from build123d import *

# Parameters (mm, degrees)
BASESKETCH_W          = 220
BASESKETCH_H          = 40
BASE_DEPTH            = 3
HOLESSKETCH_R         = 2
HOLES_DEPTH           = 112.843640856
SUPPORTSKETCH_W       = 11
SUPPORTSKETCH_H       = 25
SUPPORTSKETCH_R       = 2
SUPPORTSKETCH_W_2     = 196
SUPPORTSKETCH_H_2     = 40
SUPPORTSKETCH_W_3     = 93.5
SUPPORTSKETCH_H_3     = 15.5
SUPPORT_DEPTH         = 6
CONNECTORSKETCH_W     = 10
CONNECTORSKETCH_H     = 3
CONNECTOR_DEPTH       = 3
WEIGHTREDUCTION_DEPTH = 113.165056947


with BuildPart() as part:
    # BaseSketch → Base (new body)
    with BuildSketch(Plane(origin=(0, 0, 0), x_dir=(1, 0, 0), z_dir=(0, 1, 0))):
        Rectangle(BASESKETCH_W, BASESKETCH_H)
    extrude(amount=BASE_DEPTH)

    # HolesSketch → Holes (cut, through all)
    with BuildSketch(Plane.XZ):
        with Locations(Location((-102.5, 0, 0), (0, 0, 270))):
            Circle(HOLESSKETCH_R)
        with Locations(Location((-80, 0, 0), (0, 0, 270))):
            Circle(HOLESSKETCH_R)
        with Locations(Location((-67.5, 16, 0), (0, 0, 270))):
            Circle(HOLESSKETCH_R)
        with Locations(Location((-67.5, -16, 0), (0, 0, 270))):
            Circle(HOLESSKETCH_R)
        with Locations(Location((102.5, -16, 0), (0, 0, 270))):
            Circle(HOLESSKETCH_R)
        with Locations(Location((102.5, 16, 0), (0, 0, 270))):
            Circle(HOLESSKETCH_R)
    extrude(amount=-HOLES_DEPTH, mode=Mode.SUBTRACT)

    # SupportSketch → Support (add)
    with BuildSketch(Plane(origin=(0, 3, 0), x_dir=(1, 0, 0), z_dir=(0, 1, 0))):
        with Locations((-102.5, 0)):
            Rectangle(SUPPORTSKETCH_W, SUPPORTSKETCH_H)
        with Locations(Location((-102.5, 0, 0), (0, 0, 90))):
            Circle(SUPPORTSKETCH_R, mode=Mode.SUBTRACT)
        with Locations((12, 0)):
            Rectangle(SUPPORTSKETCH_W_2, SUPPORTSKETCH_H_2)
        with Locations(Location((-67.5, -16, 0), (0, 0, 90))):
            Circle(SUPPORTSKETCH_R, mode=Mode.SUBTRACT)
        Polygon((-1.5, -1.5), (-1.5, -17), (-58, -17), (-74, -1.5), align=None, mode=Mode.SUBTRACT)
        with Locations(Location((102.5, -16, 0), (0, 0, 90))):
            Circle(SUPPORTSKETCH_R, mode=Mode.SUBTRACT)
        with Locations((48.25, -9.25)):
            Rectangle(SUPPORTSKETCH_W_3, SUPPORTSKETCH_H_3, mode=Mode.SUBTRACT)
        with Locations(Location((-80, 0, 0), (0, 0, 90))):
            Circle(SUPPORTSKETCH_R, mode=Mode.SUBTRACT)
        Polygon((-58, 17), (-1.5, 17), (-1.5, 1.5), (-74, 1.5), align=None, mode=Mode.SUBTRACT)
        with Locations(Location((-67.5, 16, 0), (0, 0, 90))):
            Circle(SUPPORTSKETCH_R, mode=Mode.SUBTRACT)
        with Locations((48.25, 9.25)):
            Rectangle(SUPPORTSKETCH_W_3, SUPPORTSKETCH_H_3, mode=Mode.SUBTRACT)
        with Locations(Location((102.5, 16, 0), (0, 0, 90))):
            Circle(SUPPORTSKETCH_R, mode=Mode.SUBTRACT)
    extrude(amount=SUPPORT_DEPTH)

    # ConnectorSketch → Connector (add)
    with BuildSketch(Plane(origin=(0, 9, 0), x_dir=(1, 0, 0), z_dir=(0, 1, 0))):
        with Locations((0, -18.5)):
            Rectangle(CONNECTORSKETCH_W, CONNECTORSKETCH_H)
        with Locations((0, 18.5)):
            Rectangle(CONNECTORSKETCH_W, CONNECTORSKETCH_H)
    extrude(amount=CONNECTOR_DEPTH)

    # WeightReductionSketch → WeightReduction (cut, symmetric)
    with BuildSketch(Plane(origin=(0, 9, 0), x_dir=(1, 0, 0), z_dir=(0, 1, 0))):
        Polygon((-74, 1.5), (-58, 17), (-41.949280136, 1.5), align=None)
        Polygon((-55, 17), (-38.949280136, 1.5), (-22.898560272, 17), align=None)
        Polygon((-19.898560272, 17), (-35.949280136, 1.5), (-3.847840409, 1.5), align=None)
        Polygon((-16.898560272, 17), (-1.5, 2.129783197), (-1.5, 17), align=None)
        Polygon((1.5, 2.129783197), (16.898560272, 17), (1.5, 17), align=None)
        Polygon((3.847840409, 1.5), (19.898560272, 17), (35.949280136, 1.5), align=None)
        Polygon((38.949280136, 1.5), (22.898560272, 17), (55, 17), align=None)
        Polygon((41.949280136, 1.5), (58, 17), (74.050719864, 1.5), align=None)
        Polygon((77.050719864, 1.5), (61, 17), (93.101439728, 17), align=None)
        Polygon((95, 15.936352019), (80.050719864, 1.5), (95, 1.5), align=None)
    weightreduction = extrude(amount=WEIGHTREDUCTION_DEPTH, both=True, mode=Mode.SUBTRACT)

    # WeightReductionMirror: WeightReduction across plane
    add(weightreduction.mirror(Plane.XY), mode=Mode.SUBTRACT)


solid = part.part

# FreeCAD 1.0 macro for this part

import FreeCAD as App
import Part
import Sketcher
from FreeCAD import Vector
Q = App.Units.Quantity


def add_polygon(sketch, points):
    """Adds a closed chain of lines whose ends are joined by coincident constraints."""
    first, n = sketch.GeometryCount, len(points)
    for a, b in zip(points, points[1:] + points[:1]):
        sketch.addGeometry(Part.LineSegment(App.Vector(*a, 0), App.Vector(*b, 0)), False)
    for i in range(n):
        sketch.addConstraint(Sketcher.Constraint("Coincident", first + i, 2, first + (i + 1) % n, 1))

doc = App.newDocument("Part")
body = doc.addObject("PartDesign::Body", "Body")

sketch1 = body.newObject("Sketcher::SketchObject", "Sketch")
sketch1.AttachmentSupport = (doc.getObject("XZ_Plane"), [""])
sketch1.MapMode = "FlatFace"
add_polygon(sketch1, [(-110, -20), (-110, 20), (110, 20), (110, -20)])
sketch1.addConstraint(Sketcher.Constraint("Vertical", 0))
sketch1.addConstraint(Sketcher.Constraint("Horizontal", 1))
sketch1.addConstraint(Sketcher.Constraint("Vertical", 2))
sketch1.addConstraint(Sketcher.Constraint("Horizontal", 3))
sketch1.addConstraint(Sketcher.Constraint("Symmetric", 0, 2, 2, 2, -1, 1))
sketch1.addConstraint(Sketcher.Constraint("DistanceX", 1, 1, 1, 2, Q("220 mm")))
sketch1.addConstraint(Sketcher.Constraint("DistanceY", 0, 1, 0, 2, Q("40 mm")))
pad1 = body.newObject("PartDesign::Pad", "Pad")
pad1.Profile = sketch1
pad1.Length = 3
pad1.Reversed = True

sketch2 = body.newObject("Sketcher::SketchObject", "Sketch001")
sketch2.AttachmentSupport = (doc.getObject("XZ_Plane"), [""])
sketch2.MapMode = "FlatFace"
sketch2.addGeometry(Part.Circle(Vector(-102.5, 0, 0), Vector(0, 0, 1), 2), False)
sketch2.addGeometry(Part.Circle(Vector(-80, 0, 0), Vector(0, 0, 1), 2), False)
sketch2.addGeometry(Part.Circle(Vector(-67.5, 16, 0), Vector(0, 0, 1), 2), False)
sketch2.addGeometry(Part.Circle(Vector(-67.5, -16, 0), Vector(0, 0, 1), 2), False)
sketch2.addGeometry(Part.Circle(Vector(102.5, -16, 0), Vector(0, 0, 1), 2), False)
sketch2.addGeometry(Part.Circle(Vector(102.5, 16, 0), Vector(0, 0, 1), 2), False)
sketch2.addConstraint(Sketcher.Constraint("Equal", 0, 1))
sketch2.addConstraint(Sketcher.Constraint("Equal", 1, 2))
sketch2.addConstraint(Sketcher.Constraint("Equal", 2, 3))
sketch2.addConstraint(Sketcher.Constraint("Equal", 3, 4))
sketch2.addConstraint(Sketcher.Constraint("Equal", 4, 5))
sketch2.addConstraint(Sketcher.Constraint("Symmetric", 2, 3, 3, 3, -1))
sketch2.addConstraint(Sketcher.Constraint("Symmetric", 4, 3, 5, 3, -1))
sketch2.addConstraint(Sketcher.Constraint("PointOnObject", 0, 3, -1))
sketch2.addConstraint(Sketcher.Constraint("PointOnObject", 1, 3, -1))
sketch2.addConstraint(Sketcher.Constraint("Horizontal", 3, 3, 4, 3))
sketch2.addConstraint(Sketcher.Constraint("Diameter", 0, Q("4 mm")))
sketch2.addConstraint(Sketcher.Constraint("DistanceX", 1, 3, -1, 1, Q("80 mm")))
sketch2.addConstraint(Sketcher.Constraint("DistanceY", -1, 1, 2, 3, Q("16 mm")))
sketch2.addConstraint(Sketcher.Constraint("DistanceX", 0, 3, 2, 3, Q("35 mm")))
sketch2.addConstraint(Sketcher.Constraint("DistanceX", 3, 3, 4, 3, Q("170 mm")))
sketch2.addConstraint(Sketcher.Constraint("DistanceX", 0, 3, -1, 1, Q("102.5 mm")))
pocket1 = body.newObject("PartDesign::Pocket", "Pocket")
pocket1.Profile = sketch2
pocket1.Type = "ThroughAll"

sketch3 = body.newObject("Sketcher::SketchObject", "Sketch002")
sketch3.AttachmentSupport = (doc.getObject("XZ_Plane"), [""])
sketch3.MapMode = "FlatFace"
sketch3.AttachmentOffset = App.Placement(Vector(0, 0, -3), App.Rotation())
add_polygon(sketch3, [(-108, -12.5), (-108, 12.5), (-97, 12.5), (-97, -12.5)])
sketch3.addGeometry(Part.Circle(Vector(-102.5, 0, 0), Vector(0, 0, 1), 2), False)
add_polygon(sketch3, [(-86, -20), (-86, 20), (110, 20), (110, -20)])
sketch3.addGeometry(Part.Circle(Vector(-67.5, 16, 0), Vector(0, 0, 1), 2), False)
add_polygon(sketch3, [(-74, 1.5), (-1.5, 1.5), (-1.5, 17), (-58, 17)])
add_polygon(sketch3, [(95, 17), (1.5, 17), (1.5, 1.5), (95, 1.5)])
sketch3.addGeometry(Part.Circle(Vector(102.5, 16, 0), Vector(0, 0, 1), 2), False)
sketch3.addGeometry(Part.Circle(Vector(-80, 0, 0), Vector(0, 0, 1), 2), False)
add_polygon(sketch3, [(-74, -1.5), (-58, -17), (-1.5, -17), (-1.5, -1.5)])
sketch3.addGeometry(Part.Circle(Vector(-67.5, -16, 0), Vector(0, 0, 1), 2), False)
add_polygon(sketch3, [(95, -1.5), (1.5, -1.5), (1.5, -17), (95, -17)])
sketch3.addGeometry(Part.Circle(Vector(102.5, -16, 0), Vector(0, 0, 1), 2), False)
sketch3.addConstraint(Sketcher.Constraint("Vertical", 0))
sketch3.addConstraint(Sketcher.Constraint("Horizontal", 1))
sketch3.addConstraint(Sketcher.Constraint("Vertical", 2))
sketch3.addConstraint(Sketcher.Constraint("Horizontal", 3))
sketch3.addConstraint(Sketcher.Constraint("Vertical", 5))
sketch3.addConstraint(Sketcher.Constraint("Horizontal", 6))
sketch3.addConstraint(Sketcher.Constraint("Vertical", 7))
sketch3.addConstraint(Sketcher.Constraint("Horizontal", 8))
sketch3.addConstraint(Sketcher.Constraint("Horizontal", 10))
sketch3.addConstraint(Sketcher.Constraint("Vertical", 11))
sketch3.addConstraint(Sketcher.Constraint("Horizontal", 12))
sketch3.addConstraint(Sketcher.Constraint("Horizontal", 14))
sketch3.addConstraint(Sketcher.Constraint("Vertical", 15))
sketch3.addConstraint(Sketcher.Constraint("Horizontal", 16))
sketch3.addConstraint(Sketcher.Constraint("Vertical", 17))
sketch3.addConstraint(Sketcher.Constraint("Horizontal", 21))
sketch3.addConstraint(Sketcher.Constraint("Vertical", 22))
sketch3.addConstraint(Sketcher.Constraint("Horizontal", 23))
sketch3.addConstraint(Sketcher.Constraint("Horizontal", 25))
sketch3.addConstraint(Sketcher.Constraint("Vertical", 26))
sketch3.addConstraint(Sketcher.Constraint("Horizontal", 27))
sketch3.addConstraint(Sketcher.Constraint("Vertical", 28))
sketch3.addConstraint(Sketcher.Constraint("Equal", 4, 9))
sketch3.addConstraint(Sketcher.Constraint("Equal", 9, 18))
sketch3.addConstraint(Sketcher.Constraint("Equal", 18, 19))
sketch3.addConstraint(Sketcher.Constraint("Equal", 19, 24))
sketch3.addConstraint(Sketcher.Constraint("Equal", 24, 29))
sketch3.addConstraint(Sketcher.Constraint("Symmetric", 14, 2, 21, 2, -1, 1))
sketch3.addConstraint(Sketcher.Constraint("Symmetric", 10, 2, 25, 2, -1, 1))
sketch3.addConstraint(Sketcher.Constraint("Symmetric", 11, 2, 14, 2, -2))
sketch3.addConstraint(Sketcher.Constraint("Symmetric", 9, 3, 24, 3, -1))
sketch3.addConstraint(Sketcher.Constraint("Symmetric", 18, 3, 29, 3, -1))
sketch3.addConstraint(Sketcher.Constraint("Symmetric", 13, 2, 23, 2, -1))
sketch3.addConstraint(Sketcher.Constraint("Symmetric", 17, 2, 27, 2, -1))
sketch3.addConstraint(Sketcher.Constraint("PointOnObject", 4, 3, -1))
sketch3.addConstraint(Sketcher.Constraint("PointOnObject", 19, 3, -1))
sketch3.addConstraint(Sketcher.Constraint("Horizontal", 9, 3, 18, 3))
sketch3.addConstraint(Sketcher.Constraint("Horizontal", 13, 2, 15, 2))
sketch3.addConstraint(Sketcher.Constraint("Vertical", 12, 2, 20, 2))
sketch3.addConstraint(Sketcher.Constraint("Diameter", 4, Q("4 mm")))
sketch3.addConstraint(Sketcher.Constraint("DistanceX", 1, 1, 1, 2, Q("11 mm")))
sketch3.addConstraint(Sketcher.Constraint("DistanceX", 6, 1, 6, 2, Q("196 mm")))
sketch3.addConstraint(Sketcher.Constraint("DistanceY", 0, 1, 0, 2, Q("25 mm")))
sketch3.addConstraint(Sketcher.Constraint("DistanceY", 5, 1, 5, 2, Q("40 mm")))
sketch3.addConstraint(Sketcher.Constraint("DistanceX", 10, 1, 10, 2, Q("72.5 mm")))
sketch3.addConstraint(Sketcher.Constraint("DistanceX", 12, 2, 12, 1, Q("56.5 mm")))
sketch3.addConstraint(Sketcher.Constraint("DistanceX", 14, 2, 14, 1, Q("93.5 mm")))
sketch3.addConstraint(Sketcher.Constraint("DistanceY", 11, 1, 11, 2, Q("15.5 mm")))
sketch3.addConstraint(Sketcher.Constraint("DistanceY", -1, 1, 9, 3, Q("16 mm")))
sketch3.addConstraint(Sketcher.Constraint("DistanceX", 19, 3, -1, 1, Q("80 mm")))
sketch3.addConstraint(Sketcher.Constraint("DistanceX", 0, 2, -1, 1, Q("108 mm")))
sketch3.addConstraint(Sketcher.Constraint("DistanceX", 5, 2, -1, 1, Q("86 mm")))
sketch3.addConstraint(Sketcher.Constraint("DistanceY", -1, 1, 5, 2, Q("20 mm")))
sketch3.addConstraint(Sketcher.Constraint("DistanceY", -1, 1, 11, 2, Q("17 mm")))
sketch3.addConstraint(Sketcher.Constraint("DistanceX", 12, 2, -1, 1, Q("58 mm")))
sketch3.addConstraint(Sketcher.Constraint("DistanceX", 4, 3, 9, 3, Q("35 mm")))
sketch3.addConstraint(Sketcher.Constraint("DistanceX", 9, 3, 18, 3, Q("170 mm")))
sketch3.addConstraint(Sketcher.Constraint("DistanceX", 9, 3, 10, 2, Q("66 mm")))
sketch3.addConstraint(Sketcher.Constraint("DistanceY", -1, 1, 0, 2, Q("12.5 mm")))
pad2 = body.newObject("PartDesign::Pad", "Pad001")
pad2.Profile = sketch3
pad2.Length = 6
pad2.Reversed = True

sketch4 = body.newObject("Sketcher::SketchObject", "Sketch003")
sketch4.AttachmentSupport = (doc.getObject("XZ_Plane"), [""])
sketch4.MapMode = "FlatFace"
sketch4.AttachmentOffset = App.Placement(Vector(0, 0, -9), App.Rotation())
add_polygon(sketch4, [(-5, 17), (-5, 20), (5, 20), (5, 17)])
add_polygon(sketch4, [(-5, -20), (-5, -17), (5, -17), (5, -20)])
sketch4.addConstraint(Sketcher.Constraint("Vertical", 0))
sketch4.addConstraint(Sketcher.Constraint("Horizontal", 1))
sketch4.addConstraint(Sketcher.Constraint("Vertical", 2))
sketch4.addConstraint(Sketcher.Constraint("Horizontal", 3))
sketch4.addConstraint(Sketcher.Constraint("Vertical", 4))
sketch4.addConstraint(Sketcher.Constraint("Horizontal", 5))
sketch4.addConstraint(Sketcher.Constraint("Vertical", 6))
sketch4.addConstraint(Sketcher.Constraint("Horizontal", 7))
sketch4.addConstraint(Sketcher.Constraint("Symmetric", 2, 2, 4, 2, -1, 1))
sketch4.addConstraint(Sketcher.Constraint("Symmetric", 0, 2, 6, 2, -1, 1))
sketch4.addConstraint(Sketcher.Constraint("Vertical", 3, 2, 4, 2))
sketch4.addConstraint(Sketcher.Constraint("DistanceX", 1, 1, 1, 2, Q("10 mm")))
sketch4.addConstraint(Sketcher.Constraint("DistanceY", 0, 1, 0, 2, Q("3 mm")))
sketch4.addConstraint(Sketcher.Constraint("DistanceY", -1, 1, 0, 2, Q("20 mm")))
pad3 = body.newObject("PartDesign::Pad", "Pad002")
pad3.Profile = sketch4
pad3.Length = 3
pad3.Reversed = True

sketch5 = body.newObject("Sketcher::SketchObject", "Sketch004")
sketch5.AttachmentSupport = (doc.getObject("XZ_Plane"), [""])
sketch5.MapMode = "FlatFace"
sketch5.AttachmentOffset = App.Placement(Vector(0, 0, -9), App.Rotation())
add_polygon(sketch5, [(-58, -17), (-74, -2), (-42, -2)])
add_polygon(sketch5, [(-55, -17), (-39, -2), (-23, -17)])
add_polygon(sketch5, [(-20, -17), (-36, -2), (-4, -2)])
add_polygon(sketch5, [(-17, -17), (-2, -2), (-2, -17)])
add_polygon(sketch5, [(2, -2), (17, -17), (2, -17)])
add_polygon(sketch5, [(20, -17), (4, -2), (36, -2)])
add_polygon(sketch5, [(23, -17), (39, -2), (55, -17)])
add_polygon(sketch5, [(58, -17), (42, -2), (74, -2)])
add_polygon(sketch5, [(61, -17), (77, -2), (93, -17)])
add_polygon(sketch5, [(95, -16), (80, -2), (95, -2)])
sketch5.addConstraint(Sketcher.Constraint("Horizontal", 1))
sketch5.addConstraint(Sketcher.Constraint("Horizontal", 5))
sketch5.addConstraint(Sketcher.Constraint("Horizontal", 7))
sketch5.addConstraint(Sketcher.Constraint("Vertical", 10))
sketch5.addConstraint(Sketcher.Constraint("Horizontal", 11))
sketch5.addConstraint(Sketcher.Constraint("Horizontal", 13))
sketch5.addConstraint(Sketcher.Constraint("Vertical", 14))
sketch5.addConstraint(Sketcher.Constraint("Horizontal", 16))
sketch5.addConstraint(Sketcher.Constraint("Horizontal", 20))
sketch5.addConstraint(Sketcher.Constraint("Horizontal", 22))
sketch5.addConstraint(Sketcher.Constraint("Horizontal", 26))
sketch5.addConstraint(Sketcher.Constraint("Horizontal", 28))
sketch5.addConstraint(Sketcher.Constraint("Vertical", 29))
sketch5.addConstraint(Sketcher.Constraint("Symmetric", 11, 2, 12, 2, -2))
sketch5.addConstraint(Sketcher.Constraint("Symmetric", 9, 2, 14, 2, -2))
sketch5.addConstraint(Sketcher.Constraint("Symmetric", 7, 2, 15, 2, -2))
sketch5.addConstraint(Sketcher.Constraint("Symmetric", 8, 2, 17, 2, -2))
sketch5.addConstraint(Sketcher.Constraint("Symmetric", 3, 2, 18, 2, -2))
sketch5.addConstraint(Sketcher.Constraint("Symmetric", 5, 2, 19, 2, -2))
sketch5.addConstraint(Sketcher.Constraint("Symmetric", 1, 2, 21, 2, -2))
sketch5.addConstraint(Sketcher.Constraint("Symmetric", 2, 2, 23, 2, -2))
sketch5.addConstraint(Sketcher.Constraint("Parallel", 2, 3))
sketch5.addConstraint(Sketcher.Constraint("Parallel", 4, 6))
sketch5.addConstraint(Sketcher.Constraint("Parallel", 3, 8))
sketch5.addConstraint(Sketcher.Constraint("Parallel", 8, 9))
sketch5.addConstraint(Sketcher.Constraint("Parallel", 6, 12))
sketch5.addConstraint(Sketcher.Constraint("Parallel", 9, 17))
sketch5.addConstraint(Sketcher.Constraint("Parallel", 17, 18))
sketch5.addConstraint(Sketcher.Constraint("Parallel", 18, 23))
sketch5.addConstraint(Sketcher.Constraint("Parallel", 23, 24))
sketch5.addConstraint(Sketcher.Constraint("Parallel", 21, 25))
sketch5.addConstraint(Sketcher.Constraint("Parallel", 25, 27))
sketch5.addConstraint(Sketcher.Constraint("Horizontal", 1, 2, 3, 2))
sketch5.addConstraint(Sketcher.Constraint("Horizontal", 2, 2, 4, 2))
sketch5.addConstraint(Sketcher.Constraint("Horizontal", 3, 2, 6, 2))
sketch5.addConstraint(Sketcher.Constraint("Horizontal", 5, 2, 8, 2))
sketch5.addConstraint(Sketcher.Constraint("Horizontal", 8, 2, 10, 2))
sketch5.addConstraint(Sketcher.Constraint("Horizontal", 22, 2, 24, 2))
sketch5.addConstraint(Sketcher.Constraint("Horizontal", 23, 2, 25, 2))
sketch5.addConstraint(Sketcher.Constraint("Horizontal", 24, 2, 27, 2))
sketch5.addConstraint(Sketcher.Constraint("Angle", 2, Q("-136 deg")))
sketch5.addConstraint(Sketcher.Constraint("DistanceX", 0, 2, -1, 1, Q("74 mm")))
sketch5.addConstraint(Sketcher.Constraint("DistanceX", 2, 2, -1, 1, Q("58 mm")))
sketch5.addConstraint(Sketcher.Constraint("DistanceY", 2, 2, -1, 1, Q("17 mm")))
sketch5.addConstraint(Sketcher.Constraint("DistanceX", 5, 2, -1, 1, Q("55 mm")))
sketch5.addConstraint(Sketcher.Constraint("DistanceX", -1, 1, 26, 2, Q("61 mm")))
sketch5.addConstraint(Sketcher.Constraint("DistanceX", -1, 1, 28, 2, Q("95 mm")))
sketch5.addConstraint(Sketcher.Constraint("DistanceX", 3, 2, 6, 2, Q("3 mm")))
sketch5.addConstraint(Sketcher.Constraint("DistanceX", 8, 2, 11, 2, Q("3 mm")))
sketch5.addConstraint(Sketcher.Constraint("DistanceX", 10, 2, 13, 2, Q("3 mm")))
sketch5.addConstraint(Sketcher.Constraint("DistanceX", 24, 2, 27, 2, Q("3 mm")))
sketch5.addConstraint(Sketcher.Constraint("DistanceY", 0, 2, -1, 1, Q("1.5 mm")))
pocket2 = body.newObject("PartDesign::Pocket", "Pocket001")
pocket2.Profile = sketch5
pocket2.Length = 226.330114
pocket2.Midplane = True
doc.recompute()

mirrored = body.newObject("PartDesign::Mirrored", "Mirrored")
mirrored.Originals = [pocket2]
mirrored.MirrorPlane = (doc.getObject("XY_Plane"), [""])
body.Tip = mirrored

doc.recompute()
